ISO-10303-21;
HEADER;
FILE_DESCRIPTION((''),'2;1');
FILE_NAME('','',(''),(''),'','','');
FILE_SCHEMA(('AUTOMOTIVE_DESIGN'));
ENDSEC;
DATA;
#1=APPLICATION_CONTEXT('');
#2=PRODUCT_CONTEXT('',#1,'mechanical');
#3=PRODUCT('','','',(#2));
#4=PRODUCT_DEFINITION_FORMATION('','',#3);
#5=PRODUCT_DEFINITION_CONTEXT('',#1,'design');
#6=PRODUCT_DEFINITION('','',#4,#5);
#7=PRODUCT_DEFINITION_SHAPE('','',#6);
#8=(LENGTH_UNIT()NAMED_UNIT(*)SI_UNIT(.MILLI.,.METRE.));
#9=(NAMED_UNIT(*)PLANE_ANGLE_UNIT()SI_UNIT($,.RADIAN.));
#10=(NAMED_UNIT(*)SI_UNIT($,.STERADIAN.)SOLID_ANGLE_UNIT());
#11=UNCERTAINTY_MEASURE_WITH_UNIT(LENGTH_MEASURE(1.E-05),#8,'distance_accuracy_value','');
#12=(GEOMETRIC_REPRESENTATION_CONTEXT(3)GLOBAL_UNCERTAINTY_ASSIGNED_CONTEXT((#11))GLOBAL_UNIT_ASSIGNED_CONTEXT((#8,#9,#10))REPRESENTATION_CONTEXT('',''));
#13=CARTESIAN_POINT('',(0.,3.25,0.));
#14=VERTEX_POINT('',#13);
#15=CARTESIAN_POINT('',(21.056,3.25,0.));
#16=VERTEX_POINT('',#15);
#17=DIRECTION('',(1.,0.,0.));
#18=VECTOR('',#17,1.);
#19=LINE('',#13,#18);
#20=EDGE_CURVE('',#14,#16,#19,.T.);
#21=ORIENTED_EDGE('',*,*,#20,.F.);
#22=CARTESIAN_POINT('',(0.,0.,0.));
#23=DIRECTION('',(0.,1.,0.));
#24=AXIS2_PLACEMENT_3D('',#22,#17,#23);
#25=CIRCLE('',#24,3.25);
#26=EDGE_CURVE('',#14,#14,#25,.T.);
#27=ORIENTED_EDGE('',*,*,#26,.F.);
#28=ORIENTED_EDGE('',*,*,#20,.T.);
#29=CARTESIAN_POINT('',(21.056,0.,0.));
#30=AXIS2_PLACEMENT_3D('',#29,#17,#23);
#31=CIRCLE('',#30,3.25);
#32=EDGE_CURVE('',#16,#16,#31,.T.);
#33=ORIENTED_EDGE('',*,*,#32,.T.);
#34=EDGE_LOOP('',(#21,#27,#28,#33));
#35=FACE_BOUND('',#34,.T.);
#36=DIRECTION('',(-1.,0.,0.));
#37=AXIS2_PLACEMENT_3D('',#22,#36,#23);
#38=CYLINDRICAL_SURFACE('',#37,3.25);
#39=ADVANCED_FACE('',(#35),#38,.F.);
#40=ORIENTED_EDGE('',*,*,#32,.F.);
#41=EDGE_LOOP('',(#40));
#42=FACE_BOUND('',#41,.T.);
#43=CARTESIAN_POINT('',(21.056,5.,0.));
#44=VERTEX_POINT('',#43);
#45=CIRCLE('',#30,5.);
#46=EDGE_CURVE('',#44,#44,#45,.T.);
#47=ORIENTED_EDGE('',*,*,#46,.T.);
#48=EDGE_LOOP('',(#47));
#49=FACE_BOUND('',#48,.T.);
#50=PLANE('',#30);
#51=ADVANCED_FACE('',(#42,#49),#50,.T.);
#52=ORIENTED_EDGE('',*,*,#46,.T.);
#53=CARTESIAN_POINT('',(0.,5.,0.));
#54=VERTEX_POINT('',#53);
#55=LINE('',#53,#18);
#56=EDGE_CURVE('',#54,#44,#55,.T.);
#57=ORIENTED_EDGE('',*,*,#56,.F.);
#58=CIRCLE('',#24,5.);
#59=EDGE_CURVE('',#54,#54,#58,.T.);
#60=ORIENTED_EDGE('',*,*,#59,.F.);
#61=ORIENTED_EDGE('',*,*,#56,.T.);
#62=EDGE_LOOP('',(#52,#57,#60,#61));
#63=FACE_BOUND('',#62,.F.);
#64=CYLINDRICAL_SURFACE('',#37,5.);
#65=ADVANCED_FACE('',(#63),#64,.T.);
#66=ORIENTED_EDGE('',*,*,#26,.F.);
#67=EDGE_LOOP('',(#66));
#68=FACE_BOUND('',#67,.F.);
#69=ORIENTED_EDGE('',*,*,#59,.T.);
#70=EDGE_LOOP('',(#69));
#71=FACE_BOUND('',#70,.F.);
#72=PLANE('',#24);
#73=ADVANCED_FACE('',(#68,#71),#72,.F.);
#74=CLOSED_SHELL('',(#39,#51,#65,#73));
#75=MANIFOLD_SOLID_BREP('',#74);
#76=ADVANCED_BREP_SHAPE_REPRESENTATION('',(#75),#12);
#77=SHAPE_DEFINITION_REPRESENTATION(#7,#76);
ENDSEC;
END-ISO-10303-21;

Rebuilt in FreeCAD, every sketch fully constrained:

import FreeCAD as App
import Part
import Sketcher
from FreeCAD import Vector
Q = App.Units.Quantity

doc = App.newDocument("Part")
body = doc.addObject("PartDesign::Body", "Body")

sketch1 = body.newObject("Sketcher::SketchObject", "Sketch")
sketch1.AttachmentSupport = (doc.getObject("YZ_Plane"), [""])
sketch1.MapMode = "FlatFace"
sketch1.addGeometry(Part.Circle(Vector(0, 0, 0), Vector(0, 0, 1), 5), False)
sketch1.addGeometry(Part.Circle(Vector(0, 0, 0), Vector(0, 0, 1), 3.25), False)
sketch1.addConstraint(Sketcher.Constraint("Coincident", 0, 3, -1, 1))
sketch1.addConstraint(Sketcher.Constraint("Coincident", 1, 3, -1, 1))
sketch1.addConstraint(Sketcher.Constraint("Diameter", 0, Q("10 mm")))
sketch1.addConstraint(Sketcher.Constraint("Diameter", 1, Q("6.5 mm")))
pad1 = body.newObject("PartDesign::Pad", "Pad")
pad1.Profile = sketch1
pad1.Length = 21.056

doc.recompute()
